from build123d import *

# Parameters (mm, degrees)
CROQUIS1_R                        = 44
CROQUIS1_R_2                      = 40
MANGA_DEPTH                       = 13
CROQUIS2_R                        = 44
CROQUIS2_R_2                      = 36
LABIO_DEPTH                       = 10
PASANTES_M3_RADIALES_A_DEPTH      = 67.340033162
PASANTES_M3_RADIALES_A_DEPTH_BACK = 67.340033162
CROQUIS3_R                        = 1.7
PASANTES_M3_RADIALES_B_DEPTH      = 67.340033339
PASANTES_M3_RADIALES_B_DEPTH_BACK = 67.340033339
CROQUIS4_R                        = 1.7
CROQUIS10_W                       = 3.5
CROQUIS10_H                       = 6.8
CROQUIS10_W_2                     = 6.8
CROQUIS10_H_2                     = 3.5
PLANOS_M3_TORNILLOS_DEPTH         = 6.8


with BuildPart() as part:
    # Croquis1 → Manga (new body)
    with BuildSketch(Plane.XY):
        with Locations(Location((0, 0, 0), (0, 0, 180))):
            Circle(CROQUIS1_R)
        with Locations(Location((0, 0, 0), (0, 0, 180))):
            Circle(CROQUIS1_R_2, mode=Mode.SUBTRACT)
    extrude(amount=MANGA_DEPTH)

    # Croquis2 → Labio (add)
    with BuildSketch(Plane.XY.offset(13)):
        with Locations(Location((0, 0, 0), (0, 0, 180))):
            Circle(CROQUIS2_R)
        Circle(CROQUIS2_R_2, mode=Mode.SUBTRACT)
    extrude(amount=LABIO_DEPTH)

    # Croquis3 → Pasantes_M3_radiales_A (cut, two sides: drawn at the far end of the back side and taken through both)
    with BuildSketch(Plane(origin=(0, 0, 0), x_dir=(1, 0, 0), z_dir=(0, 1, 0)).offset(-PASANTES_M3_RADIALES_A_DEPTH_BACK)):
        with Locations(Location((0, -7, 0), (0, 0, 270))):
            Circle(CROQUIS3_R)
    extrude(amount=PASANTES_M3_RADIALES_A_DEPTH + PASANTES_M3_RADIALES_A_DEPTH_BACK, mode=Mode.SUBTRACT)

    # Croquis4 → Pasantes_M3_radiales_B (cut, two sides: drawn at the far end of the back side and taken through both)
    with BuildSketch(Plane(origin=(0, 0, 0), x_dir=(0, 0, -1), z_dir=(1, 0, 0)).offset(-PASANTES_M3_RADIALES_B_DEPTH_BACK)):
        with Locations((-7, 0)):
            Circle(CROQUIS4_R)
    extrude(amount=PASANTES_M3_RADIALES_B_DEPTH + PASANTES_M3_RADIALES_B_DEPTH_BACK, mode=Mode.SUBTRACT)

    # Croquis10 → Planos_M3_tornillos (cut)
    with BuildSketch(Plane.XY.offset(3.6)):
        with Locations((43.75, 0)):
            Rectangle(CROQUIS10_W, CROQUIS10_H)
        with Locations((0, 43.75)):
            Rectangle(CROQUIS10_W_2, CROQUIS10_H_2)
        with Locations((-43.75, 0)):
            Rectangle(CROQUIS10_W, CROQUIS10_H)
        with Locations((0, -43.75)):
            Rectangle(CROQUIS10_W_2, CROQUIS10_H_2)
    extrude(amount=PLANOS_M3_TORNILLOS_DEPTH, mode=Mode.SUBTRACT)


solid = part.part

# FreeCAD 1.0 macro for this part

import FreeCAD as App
import Part
import Sketcher
from FreeCAD import Vector
Q = App.Units.Quantity


def add_polygon(sketch, points):
    """Adds a closed chain of lines whose ends are joined by coincident constraints."""
    first, n = sketch.GeometryCount, len(points)
    for a, b in zip(points, points[1:] + points[:1]):
        sketch.addGeometry(Part.LineSegment(App.Vector(*a, 0), App.Vector(*b, 0)), False)
    for i in range(n):
        sketch.addConstraint(Sketcher.Constraint("Coincident", first + i, 2, first + (i + 1) % n, 1))

doc = App.newDocument("Part")
body = doc.addObject("PartDesign::Body", "Body")

# Sketch on XY plane
sketch1 = body.newObject("Sketcher::SketchObject", "Sketch")
sketch1.AttachmentSupport = (doc.getObject("XY_Plane"), [""])
sketch1.MapMode = "FlatFace"
sketch1.addGeometry(Part.Circle(Vector(0, 0, 0), Vector(0, 0, 1), 44), False)
sketch1.addGeometry(Part.Circle(Vector(0, 0, 0), Vector(0, 0, 1), 40), False)
sketch1.addConstraint(Sketcher.Constraint("Coincident", 0, 3, -1, 1))
sketch1.addConstraint(Sketcher.Constraint("Coincident", 1, 3, -1, 1))
sketch1.addConstraint(Sketcher.Constraint("Diameter", 0, Q("88 mm")))
sketch1.addConstraint(Sketcher.Constraint("Diameter", 1, Q("80 mm")))
pad1 = body.newObject("PartDesign::Pad", "Pad")
pad1.Profile = sketch1
pad1.Length = 13

# Sketch on XY plane
sketch2 = body.newObject("Sketcher::SketchObject", "Sketch001")
sketch2.AttachmentSupport = (doc.getObject("XY_Plane"), [""])
sketch2.MapMode = "FlatFace"
sketch2.AttachmentOffset = App.Placement(Vector(0, 0, 13), App.Rotation())
sketch2.addGeometry(Part.Circle(Vector(0, 0, 0), Vector(0, 0, 1), 44), False)
sketch2.addGeometry(Part.Circle(Vector(0, 0, 0), Vector(0, 0, 1), 36), False)
sketch2.addConstraint(Sketcher.Constraint("Coincident", 0, 3, -1, 1))
sketch2.addConstraint(Sketcher.Constraint("Coincident", 1, 3, -1, 1))
sketch2.addConstraint(Sketcher.Constraint("Diameter", 0, Q("88 mm")))
sketch2.addConstraint(Sketcher.Constraint("Diameter", 1, Q("72 mm")))
pad2 = body.newObject("PartDesign::Pad", "Pad001")
pad2.Profile = sketch2
pad2.Length = 10

# Sketch on XZ plane
sketch3 = body.newObject("Sketcher::SketchObject", "Sketch002")
sketch3.AttachmentSupport = (doc.getObject("XZ_Plane"), [""])
sketch3.MapMode = "FlatFace"
sketch3.addGeometry(Part.Circle(Vector(0, 7, 0), Vector(0, 0, 1), 1.7), False)
sketch3.addConstraint(Sketcher.Constraint("PointOnObject", 0, 3, -2))
sketch3.addConstraint(Sketcher.Constraint("Diameter", 0, Q("3.4 mm")))
sketch3.addConstraint(Sketcher.Constraint("DistanceY", -1, 1, 0, 3, Q("7 mm")))
pocket1 = body.newObject("PartDesign::Pocket", "Pocket")
pocket1.Profile = sketch3
pocket1.Type = "ThroughAll"
pocket1.Midplane = True

# Sketch on YZ plane
sketch4 = body.newObject("Sketcher::SketchObject", "Sketch003")
sketch4.AttachmentSupport = (doc.getObject("YZ_Plane"), [""])
sketch4.MapMode = "FlatFace"
sketch4.addGeometry(Part.Circle(Vector(0, 7, 0), Vector(0, 0, 1), 1.7), False)
sketch4.addConstraint(Sketcher.Constraint("PointOnObject", 0, 3, -2))
sketch4.addConstraint(Sketcher.Constraint("Diameter", 0, Q("3.4 mm")))
sketch4.addConstraint(Sketcher.Constraint("DistanceY", -1, 1, 0, 3, Q("7 mm")))
pocket2 = body.newObject("PartDesign::Pocket", "Pocket001")
pocket2.Profile = sketch4
pocket2.Type = "ThroughAll"
pocket2.Midplane = True

# Sketch on XY plane
sketch5 = body.newObject("Sketcher::SketchObject", "Sketch004")
sketch5.AttachmentSupport = (doc.getObject("XY_Plane"), [""])
sketch5.MapMode = "FlatFace"
sketch5.AttachmentOffset = App.Placement(Vector(0, 0, 3.6), App.Rotation())
add_polygon(sketch5, [(42, 3.4), (42, -3.4), (45.5, -3.4), (45.5, 3.4)])  # lines 0-3
add_polygon(sketch5, [(-3.4, 45.5), (-3.4, 42), (3.4, 42), (3.4, 45.5)])  # lines 4-7
add_polygon(sketch5, [(-45.5, 3.4), (-45.5, -3.4), (-42, -3.4), (-42, 3.4)])  # lines 8-11
add_polygon(sketch5, [(-3.4, -42), (-3.4, -45.5), (3.4, -45.5), (3.4, -42)])  # lines 12-15
sketch5.addConstraint(Sketcher.Constraint("Vertical", 0))
sketch5.addConstraint(Sketcher.Constraint("Horizontal", 1))
sketch5.addConstraint(Sketcher.Constraint("Vertical", 2))
sketch5.addConstraint(Sketcher.Constraint("Horizontal", 3))
sketch5.addConstraint(Sketcher.Constraint("Vertical", 4))
sketch5.addConstraint(Sketcher.Constraint("Horizontal", 5))
sketch5.addConstraint(Sketcher.Constraint("Vertical", 6))
sketch5.addConstraint(Sketcher.Constraint("Horizontal", 7))
sketch5.addConstraint(Sketcher.Constraint("Vertical", 8))
sketch5.addConstraint(Sketcher.Constraint("Horizontal", 9))
sketch5.addConstraint(Sketcher.Constraint("Vertical", 10))
sketch5.addConstraint(Sketcher.Constraint("Horizontal", 11))
sketch5.addConstraint(Sketcher.Constraint("Vertical", 12))
sketch5.addConstraint(Sketcher.Constraint("Horizontal", 13))
sketch5.addConstraint(Sketcher.Constraint("Vertical", 14))
sketch5.addConstraint(Sketcher.Constraint("Horizontal", 15))
sketch5.addConstraint(Sketcher.Constraint("Symmetric", 2, 2, 8, 2, -1, 1))
sketch5.addConstraint(Sketcher.Constraint("Symmetric", 0, 2, 10, 2, -1, 1))
sketch5.addConstraint(Sketcher.Constraint("Symmetric", 6, 2, 12, 2, -1, 1))
sketch5.addConstraint(Sketcher.Constraint("Symmetric", 4, 2, 14, 2, -1, 1))
sketch5.addConstraint(Sketcher.Constraint("Horizontal", 1, 2, 8, 2))
sketch5.addConstraint(Sketcher.Constraint("Vertical", 7, 2, 12, 2))
sketch5.addConstraint(Sketcher.Constraint("Equal", 15, 0))
sketch5.addConstraint(Sketcher.Constraint("Equal", 11, 4))
sketch5.addConstraint(Sketcher.Constraint("DistanceX", 1, 1, 1, 2, Q("3.5 mm")))
sketch5.addConstraint(Sketcher.Constraint("DistanceX", 5, 1, 5, 2, Q("6.8 mm")))
sketch5.addConstraint(Sketcher.Constraint("DistanceX", -1, 1, 0, 2, Q("42 mm")))
sketch5.addConstraint(Sketcher.Constraint("DistanceY", -1, 1, 4, 2, Q("42 mm")))
pocket3 = body.newObject("PartDesign::Pocket", "Pocket002")
pocket3.Profile = sketch5
pocket3.Length = 6.8
pocket3.Reversed = True

doc.recompute()
